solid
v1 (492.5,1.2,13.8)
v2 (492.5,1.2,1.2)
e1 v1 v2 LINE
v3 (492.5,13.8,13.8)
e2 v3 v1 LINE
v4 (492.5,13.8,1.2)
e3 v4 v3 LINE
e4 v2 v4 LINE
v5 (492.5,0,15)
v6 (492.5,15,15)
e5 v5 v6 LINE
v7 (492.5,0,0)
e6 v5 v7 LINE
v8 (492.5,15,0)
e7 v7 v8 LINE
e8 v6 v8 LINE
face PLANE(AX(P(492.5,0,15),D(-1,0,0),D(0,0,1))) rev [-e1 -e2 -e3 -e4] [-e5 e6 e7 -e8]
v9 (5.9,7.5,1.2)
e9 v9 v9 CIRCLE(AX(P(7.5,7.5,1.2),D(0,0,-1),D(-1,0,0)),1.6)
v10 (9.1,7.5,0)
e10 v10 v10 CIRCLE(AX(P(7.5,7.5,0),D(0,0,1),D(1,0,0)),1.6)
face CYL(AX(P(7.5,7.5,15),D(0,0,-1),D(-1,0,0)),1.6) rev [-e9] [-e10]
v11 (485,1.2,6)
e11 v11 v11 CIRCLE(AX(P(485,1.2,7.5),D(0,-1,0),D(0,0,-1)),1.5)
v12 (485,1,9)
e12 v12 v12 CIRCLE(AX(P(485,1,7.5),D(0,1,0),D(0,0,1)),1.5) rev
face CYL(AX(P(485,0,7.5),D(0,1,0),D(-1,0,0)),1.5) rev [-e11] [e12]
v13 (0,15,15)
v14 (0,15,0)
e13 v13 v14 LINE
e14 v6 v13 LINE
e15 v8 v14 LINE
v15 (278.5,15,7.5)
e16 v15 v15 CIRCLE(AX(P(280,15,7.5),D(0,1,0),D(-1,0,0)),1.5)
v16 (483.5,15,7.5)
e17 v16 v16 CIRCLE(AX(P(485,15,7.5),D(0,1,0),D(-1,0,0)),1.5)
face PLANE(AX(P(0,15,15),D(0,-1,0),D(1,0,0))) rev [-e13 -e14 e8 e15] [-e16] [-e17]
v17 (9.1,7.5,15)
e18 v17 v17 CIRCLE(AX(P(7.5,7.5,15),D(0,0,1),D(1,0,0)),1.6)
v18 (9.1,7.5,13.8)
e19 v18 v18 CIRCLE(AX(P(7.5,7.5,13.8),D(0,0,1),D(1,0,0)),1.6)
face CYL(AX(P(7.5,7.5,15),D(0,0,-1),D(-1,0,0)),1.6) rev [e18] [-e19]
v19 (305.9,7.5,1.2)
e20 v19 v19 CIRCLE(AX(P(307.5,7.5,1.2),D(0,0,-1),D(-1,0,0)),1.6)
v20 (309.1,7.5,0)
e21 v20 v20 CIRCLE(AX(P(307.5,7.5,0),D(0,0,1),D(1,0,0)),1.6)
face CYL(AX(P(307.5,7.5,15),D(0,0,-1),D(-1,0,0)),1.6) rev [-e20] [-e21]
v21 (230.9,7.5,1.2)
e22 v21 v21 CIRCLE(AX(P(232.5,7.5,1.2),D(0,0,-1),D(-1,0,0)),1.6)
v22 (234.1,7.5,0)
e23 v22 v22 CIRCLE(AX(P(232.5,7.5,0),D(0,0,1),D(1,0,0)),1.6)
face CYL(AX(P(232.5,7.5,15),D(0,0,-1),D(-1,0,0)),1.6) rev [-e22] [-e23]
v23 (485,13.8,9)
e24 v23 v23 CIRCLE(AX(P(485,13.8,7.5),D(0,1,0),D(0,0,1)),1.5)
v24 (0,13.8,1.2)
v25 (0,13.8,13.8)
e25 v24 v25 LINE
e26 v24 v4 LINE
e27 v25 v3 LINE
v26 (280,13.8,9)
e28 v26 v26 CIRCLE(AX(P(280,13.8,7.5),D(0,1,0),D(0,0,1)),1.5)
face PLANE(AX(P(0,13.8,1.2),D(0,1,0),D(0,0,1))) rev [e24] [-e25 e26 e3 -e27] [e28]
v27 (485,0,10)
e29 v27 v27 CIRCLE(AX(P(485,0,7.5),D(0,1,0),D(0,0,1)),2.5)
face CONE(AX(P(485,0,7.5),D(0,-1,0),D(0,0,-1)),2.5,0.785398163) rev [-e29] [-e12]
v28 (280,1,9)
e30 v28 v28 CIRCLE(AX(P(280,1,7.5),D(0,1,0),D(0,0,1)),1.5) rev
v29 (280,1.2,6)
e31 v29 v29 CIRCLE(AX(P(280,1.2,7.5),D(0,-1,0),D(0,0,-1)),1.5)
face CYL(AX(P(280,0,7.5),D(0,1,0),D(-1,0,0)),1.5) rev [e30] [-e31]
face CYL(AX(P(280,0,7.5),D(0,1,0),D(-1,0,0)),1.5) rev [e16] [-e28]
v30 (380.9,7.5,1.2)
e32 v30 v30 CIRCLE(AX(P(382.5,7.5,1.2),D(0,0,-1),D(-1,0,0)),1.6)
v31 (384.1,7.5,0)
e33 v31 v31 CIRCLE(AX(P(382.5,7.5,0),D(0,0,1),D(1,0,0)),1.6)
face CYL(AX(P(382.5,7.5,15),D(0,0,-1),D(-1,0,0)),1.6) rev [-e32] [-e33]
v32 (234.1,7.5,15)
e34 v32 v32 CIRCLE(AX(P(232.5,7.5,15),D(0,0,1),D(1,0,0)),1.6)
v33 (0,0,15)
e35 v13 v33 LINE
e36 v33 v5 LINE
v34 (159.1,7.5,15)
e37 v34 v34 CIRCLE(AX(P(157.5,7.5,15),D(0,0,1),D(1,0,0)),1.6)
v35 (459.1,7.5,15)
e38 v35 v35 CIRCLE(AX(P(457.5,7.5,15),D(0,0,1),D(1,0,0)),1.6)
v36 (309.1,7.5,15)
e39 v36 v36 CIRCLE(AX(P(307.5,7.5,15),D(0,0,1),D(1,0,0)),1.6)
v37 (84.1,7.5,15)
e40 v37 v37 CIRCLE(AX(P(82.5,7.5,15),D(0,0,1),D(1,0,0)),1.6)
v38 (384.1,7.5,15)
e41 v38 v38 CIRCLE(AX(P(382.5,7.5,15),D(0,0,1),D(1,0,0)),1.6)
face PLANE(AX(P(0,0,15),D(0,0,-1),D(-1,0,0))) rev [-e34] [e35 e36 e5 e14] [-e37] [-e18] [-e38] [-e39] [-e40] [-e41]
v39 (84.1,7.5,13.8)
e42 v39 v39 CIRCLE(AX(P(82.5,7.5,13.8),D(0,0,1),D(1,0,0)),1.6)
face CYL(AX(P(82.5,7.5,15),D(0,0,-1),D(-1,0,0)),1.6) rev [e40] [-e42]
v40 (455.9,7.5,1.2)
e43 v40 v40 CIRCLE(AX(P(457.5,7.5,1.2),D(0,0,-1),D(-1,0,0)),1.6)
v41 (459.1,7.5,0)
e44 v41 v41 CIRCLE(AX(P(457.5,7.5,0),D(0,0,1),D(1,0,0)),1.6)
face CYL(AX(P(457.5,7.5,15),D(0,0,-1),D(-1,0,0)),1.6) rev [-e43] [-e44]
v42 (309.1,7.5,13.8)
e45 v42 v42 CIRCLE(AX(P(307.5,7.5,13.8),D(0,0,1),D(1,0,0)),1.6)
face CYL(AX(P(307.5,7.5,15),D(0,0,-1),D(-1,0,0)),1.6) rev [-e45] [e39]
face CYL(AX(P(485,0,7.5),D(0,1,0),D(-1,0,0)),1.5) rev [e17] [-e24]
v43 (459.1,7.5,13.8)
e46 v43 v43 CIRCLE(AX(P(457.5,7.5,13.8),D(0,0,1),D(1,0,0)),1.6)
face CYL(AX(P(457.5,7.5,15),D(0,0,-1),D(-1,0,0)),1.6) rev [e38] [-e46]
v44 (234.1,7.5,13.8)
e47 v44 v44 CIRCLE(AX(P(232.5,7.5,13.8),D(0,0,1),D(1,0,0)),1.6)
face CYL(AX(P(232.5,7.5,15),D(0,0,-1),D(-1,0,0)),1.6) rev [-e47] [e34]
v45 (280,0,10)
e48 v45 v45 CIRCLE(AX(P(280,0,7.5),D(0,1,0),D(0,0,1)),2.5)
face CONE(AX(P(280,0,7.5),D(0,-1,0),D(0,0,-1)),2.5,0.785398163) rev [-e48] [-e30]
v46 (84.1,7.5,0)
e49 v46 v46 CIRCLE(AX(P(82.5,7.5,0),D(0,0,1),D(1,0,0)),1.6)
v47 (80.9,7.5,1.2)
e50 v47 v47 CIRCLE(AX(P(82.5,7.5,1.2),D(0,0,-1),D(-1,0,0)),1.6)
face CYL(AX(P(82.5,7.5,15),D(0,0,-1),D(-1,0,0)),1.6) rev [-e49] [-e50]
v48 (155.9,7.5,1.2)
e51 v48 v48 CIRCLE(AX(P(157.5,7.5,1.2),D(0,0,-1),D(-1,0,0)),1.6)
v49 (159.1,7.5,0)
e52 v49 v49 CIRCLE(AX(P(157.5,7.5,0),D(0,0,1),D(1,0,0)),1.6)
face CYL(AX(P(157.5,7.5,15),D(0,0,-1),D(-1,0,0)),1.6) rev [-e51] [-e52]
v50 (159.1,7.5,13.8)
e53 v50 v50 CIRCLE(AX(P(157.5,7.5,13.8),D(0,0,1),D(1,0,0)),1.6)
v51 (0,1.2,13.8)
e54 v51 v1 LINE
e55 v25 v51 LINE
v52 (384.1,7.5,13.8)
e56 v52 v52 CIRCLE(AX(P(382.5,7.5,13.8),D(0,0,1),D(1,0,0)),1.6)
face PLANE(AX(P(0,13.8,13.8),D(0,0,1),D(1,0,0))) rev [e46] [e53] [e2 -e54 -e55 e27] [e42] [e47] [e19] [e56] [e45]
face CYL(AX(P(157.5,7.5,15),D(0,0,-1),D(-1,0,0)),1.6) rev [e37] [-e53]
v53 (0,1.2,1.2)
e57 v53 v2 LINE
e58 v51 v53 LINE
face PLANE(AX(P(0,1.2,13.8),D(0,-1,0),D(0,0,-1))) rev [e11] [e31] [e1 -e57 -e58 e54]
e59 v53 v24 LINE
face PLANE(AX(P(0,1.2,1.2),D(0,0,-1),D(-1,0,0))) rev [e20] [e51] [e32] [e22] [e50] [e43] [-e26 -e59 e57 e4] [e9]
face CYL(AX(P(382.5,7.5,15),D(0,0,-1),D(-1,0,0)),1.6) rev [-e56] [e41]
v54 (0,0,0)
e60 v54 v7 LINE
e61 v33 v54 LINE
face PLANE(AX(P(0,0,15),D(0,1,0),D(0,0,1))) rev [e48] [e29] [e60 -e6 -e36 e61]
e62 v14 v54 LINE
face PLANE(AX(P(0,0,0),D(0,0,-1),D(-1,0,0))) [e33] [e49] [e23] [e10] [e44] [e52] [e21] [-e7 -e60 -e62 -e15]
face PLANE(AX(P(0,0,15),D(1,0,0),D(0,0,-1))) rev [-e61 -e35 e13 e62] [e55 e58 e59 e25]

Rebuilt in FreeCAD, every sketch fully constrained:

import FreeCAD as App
import Part
import Sketcher

V = App.Vector


def edges_at(feature, points):
    """Names of the edges that pass closest to the given points."""
    edges = feature.Shape.Edges
    near = lambda p: min(range(len(edges)), key=lambda i: edges[i].distToShape(Part.Vertex(*p))[0])
    return sorted({f"Edge{near(p) + 1}" for p in points})


def add_polygon(sketch, points):
    """Adds a closed chain of lines whose ends are joined by coincident constraints."""
    first, n = sketch.GeometryCount, len(points)
    for a, b in zip(points, points[1:] + points[:1]):
        sketch.addGeometry(Part.LineSegment(App.Vector(*a, 0), App.Vector(*b, 0)), False)
    for i in range(n):
        sketch.addConstraint(Sketcher.Constraint("Coincident", first + i, 2, first + (i + 1) % n, 1))

doc = App.newDocument("Part")
params = doc.addObject("Spreadsheet::Sheet", "Params")
for row, (alias, value) in enumerate([
    ("sketch1_diameter", "3.2 mm"),
    ("sketch1_height", "15 mm"),
    ("sketch1_width", "492.5 mm"),
    ("pad1_length", "15 mm"),
    ("sketch2_width", "12.6 mm"),
    ("sketch3_diameter", "3 mm"),
    ("chamfer_size", "1 mm"),
], start=1):
    params.set(f"A{row}", alias)
    params.set(f"B{row}", "=" + value)
    params.setAlias(f"B{row}", alias)

body = doc.addObject("PartDesign::Body", "Body")

sketch1 = body.newObject("Sketcher::SketchObject", "Sketch")
sketch1.AttachmentSupport = (doc.getObject("XY_Plane"), [""])
sketch1.MapMode = "FlatFace"
add_polygon(sketch1, [(0, 15), (0, 0), (492.5, 0), (492.5, 15)])
sketch1.addGeometry(Part.Circle(V(7.5, 7.5, 0), V(0, 0, 1), 1.6), False)
sketch1.addGeometry(Part.Circle(V(82.5, 7.5, 0), V(0, 0, 1), 1.6), False)
sketch1.addGeometry(Part.Circle(V(157.5, 7.5, 0), V(0, 0, 1), 1.6), False)
sketch1.addGeometry(Part.Circle(V(232.5, 7.5, 0), V(0, 0, 1), 1.6), False)
sketch1.addGeometry(Part.Circle(V(307.5, 7.5, 0), V(0, 0, 1), 1.6), False)
sketch1.addGeometry(Part.Circle(V(382.5, 7.5, 0), V(0, 0, 1), 1.6), False)
sketch1.addGeometry(Part.Circle(V(457.5, 7.5, 0), V(0, 0, 1), 1.6), False)
sketch1.addConstraint([
    Sketcher.Constraint("Vertical", 0),
    Sketcher.Constraint("Horizontal", 1),
    Sketcher.Constraint("Vertical", 2),
    Sketcher.Constraint("Horizontal", 3),
    Sketcher.Constraint("Coincident", 0, 2, -1, 1),
    Sketcher.Constraint("Equal", 4, 5),
    Sketcher.Constraint("Equal", 5, 6),
    Sketcher.Constraint("Equal", 6, 7),
    Sketcher.Constraint("Equal", 7, 8),
    Sketcher.Constraint("Equal", 8, 9),
    Sketcher.Constraint("Equal", 9, 10),
    Sketcher.Constraint("Horizontal", 4, 3, 5, 3),
    Sketcher.Constraint("Horizontal", 5, 3, 6, 3),
    Sketcher.Constraint("Horizontal", 6, 3, 7, 3),
    Sketcher.Constraint("Horizontal", 7, 3, 8, 3),
    Sketcher.Constraint("Horizontal", 8, 3, 9, 3),
    Sketcher.Constraint("Horizontal", 9, 3, 10, 3),
    Sketcher.Constraint("Diameter", 4, 3.2),
    Sketcher.Constraint("DistanceY", 0, 2, 0, 1, 15.0),
    Sketcher.Constraint("DistanceX", 1, 1, 1, 2, 492.5),
    Sketcher.Constraint("DistanceX", 4, 3, 5, 3, 75.0),
    Sketcher.Constraint("DistanceX", 5, 3, 6, 3, 75.0),
    Sketcher.Constraint("DistanceX", 6, 3, 7, 3, 75.0),
    Sketcher.Constraint("DistanceX", 7, 3, 8, 3, 75.0),
    Sketcher.Constraint("DistanceX", 8, 3, 9, 3, 75.0),
    Sketcher.Constraint("DistanceX", 9, 3, 10, 3, 75.0),
    Sketcher.Constraint("DistanceX", 10, 3, 1, 2, 35.0),
    Sketcher.Constraint("DistanceY", -1, 1, 4, 3, 7.5),
])
sketch1.setExpression("Constraints[21]", "Params.sketch1_diameter")
sketch1.setExpression("Constraints[22]", "Params.sketch1_height")
sketch1.setExpression("Constraints[23]", "Params.sketch1_width")
pad1 = body.newObject("PartDesign::Pad", "Pad")
pad1.Profile = sketch1
pad1.setExpression("Length", "Params.pad1_length")

sketch2 = body.newObject("Sketcher::SketchObject", "Sketch001")
sketch2.AttachmentSupport = (doc.getObject("YZ_Plane"), [""])
sketch2.MapMode = "FlatFace"
sketch2.AttachmentOffset = App.Placement(V(0, 0, 492.5), App.Rotation())
add_polygon(sketch2, [(13.8, 13.8), (1.2, 13.8), (1.2, 1.2), (13.8, 1.2)])
sketch2.addConstraint([
    Sketcher.Constraint("Horizontal", 0),
    Sketcher.Constraint("Vertical", 1),
    Sketcher.Constraint("Horizontal", 2),
    Sketcher.Constraint("Vertical", 3),
    Sketcher.Constraint("Equal", 2, 1),
    Sketcher.Constraint("DistanceX", 0, 2, 0, 1, 12.6),
    Sketcher.Constraint("DistanceX", -1, 1, 0, 2, 1.2),
    Sketcher.Constraint("DistanceY", -1, 1, 0, 2, 13.8),
])
sketch2.setExpression("Constraints[9]", "Params.sketch2_width")
pocket1 = body.newObject("PartDesign::Pocket", "Pocket")
pocket1.Profile = sketch2
pocket1.Type = "ThroughAll"

sketch3 = body.newObject("Sketcher::SketchObject", "Sketch002")
sketch3.AttachmentSupport = (doc.getObject("XZ_Plane"), [""])
sketch3.MapMode = "FlatFace"
sketch3.AttachmentOffset = App.Placement(V(0, 0, -15), App.Rotation())
sketch3.addGeometry([
    Part.Circle(V(280, 7.5, 0), V(0, 0, 1), 1.5),
    Part.Circle(V(485, 7.5, 0), V(0, 0, 1), 1.5),
], False)
sketch3.addConstraint([
    Sketcher.Constraint("Equal", 0, 1),
    Sketcher.Constraint("Horizontal", 0, 3, 1, 3),
    Sketcher.Constraint("Diameter", 0, 3.0),
    Sketcher.Constraint("DistanceX", -1, 1, 0, 3, 280.0),
    Sketcher.Constraint("DistanceX", -1, 1, 1, 3, 485.0),
    Sketcher.Constraint("DistanceY", -1, 1, 0, 3, 7.5),
])
sketch3.setExpression("Constraints[2]", "Params.sketch3_diameter")
pocket2 = body.newObject("PartDesign::Pocket", "Pocket001")
pocket2.Profile = sketch3
pocket2.Type = "ThroughAll"
pocket2.Reversed = True
doc.recompute()

chamfer = body.newObject("PartDesign::Chamfer", "Chamfer")
chamfer.Base = (pocket2, edges_at(pocket2, [(281.5, 0, 7.5), (486.5, 0, 7.5)]))
chamfer.setExpression("Size", "Params.chamfer_size")

doc.recompute()
